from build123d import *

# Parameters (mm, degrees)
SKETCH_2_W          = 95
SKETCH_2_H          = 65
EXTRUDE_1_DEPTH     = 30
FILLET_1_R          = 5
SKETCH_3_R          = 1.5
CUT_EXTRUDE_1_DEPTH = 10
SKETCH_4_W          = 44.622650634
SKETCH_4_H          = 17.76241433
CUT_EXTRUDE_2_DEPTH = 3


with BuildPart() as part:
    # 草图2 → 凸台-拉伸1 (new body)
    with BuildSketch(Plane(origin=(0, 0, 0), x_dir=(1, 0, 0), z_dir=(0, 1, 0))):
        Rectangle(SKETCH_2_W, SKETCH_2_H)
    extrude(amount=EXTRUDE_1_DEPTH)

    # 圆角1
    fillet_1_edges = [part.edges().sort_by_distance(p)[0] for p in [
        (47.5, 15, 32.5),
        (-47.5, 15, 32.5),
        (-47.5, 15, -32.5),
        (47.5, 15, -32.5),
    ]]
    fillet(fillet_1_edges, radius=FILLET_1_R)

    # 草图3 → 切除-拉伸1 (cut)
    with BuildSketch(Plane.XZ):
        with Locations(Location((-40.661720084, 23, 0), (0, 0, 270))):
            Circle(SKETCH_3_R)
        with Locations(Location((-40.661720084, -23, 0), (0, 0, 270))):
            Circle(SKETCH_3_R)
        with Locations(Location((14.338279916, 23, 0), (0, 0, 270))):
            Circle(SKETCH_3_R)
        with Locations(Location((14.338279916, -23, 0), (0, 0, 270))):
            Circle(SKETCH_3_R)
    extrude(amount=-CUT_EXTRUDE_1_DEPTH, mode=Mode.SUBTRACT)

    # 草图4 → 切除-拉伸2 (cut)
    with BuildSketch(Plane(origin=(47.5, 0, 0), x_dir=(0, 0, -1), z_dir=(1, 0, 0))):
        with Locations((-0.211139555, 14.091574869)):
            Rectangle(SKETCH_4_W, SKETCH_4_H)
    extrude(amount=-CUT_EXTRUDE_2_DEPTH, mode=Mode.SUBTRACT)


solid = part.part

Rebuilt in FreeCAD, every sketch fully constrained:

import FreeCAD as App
import Part
import Sketcher
Q = App.Units.Quantity


def edges_at(feature, points):
    """Names of the edges that pass closest to the given points."""
    edges = feature.Shape.Edges
    near = lambda p: min(range(len(edges)), key=lambda i: edges[i].distToShape(Part.Vertex(*p))[0])
    return sorted({f"Edge{near(p) + 1}" for p in points})

doc = App.newDocument("Part")
body = doc.addObject("PartDesign::Body", "Body")

sketch1 = body.newObject("Sketcher::SketchObject", "Sketch")
sketch1.AttachmentSupport = (doc.getObject("XZ_Plane"), [""])
sketch1.MapMode = "FlatFace"
sketch1.addGeometry([
    Part.LineSegment(App.Vector(-48, -32, 0), App.Vector(-48, 32, 0)),
    Part.LineSegment(App.Vector(-48, 32, 0), App.Vector(48, 32, 0)),
    Part.LineSegment(App.Vector(48, 32, 0), App.Vector(48, -32, 0)),
    Part.LineSegment(App.Vector(48, -32, 0), App.Vector(-48, -32, 0)),
], False)
sketch1.addConstraint([
    Sketcher.Constraint("Coincident", 0, 2, 1, 1),
    Sketcher.Constraint("Coincident", 1, 2, 2, 1),
    Sketcher.Constraint("Coincident", 2, 2, 3, 1),
    Sketcher.Constraint("Coincident", 3, 2, 0, 1),
    Sketcher.Constraint("Vertical", 0),
    Sketcher.Constraint("Horizontal", 1),
    Sketcher.Constraint("Vertical", 2),
    Sketcher.Constraint("Horizontal", 3),
    Sketcher.Constraint("Symmetric", 0, 2, 2, 2, -1, 1),
    Sketcher.Constraint("DistanceX", 1, 1, 1, 2, Q("95 mm")),
    Sketcher.Constraint("DistanceY", 0, 1, 0, 2, Q("65 mm")),
])
pad1 = body.newObject("PartDesign::Pad", "Pad")
pad1.Profile = sketch1
pad1.Length = 30
pad1.Reversed = True
doc.recompute()

fillet = body.newObject("PartDesign::Fillet", "Fillet")
fillet.Base = (pad1, edges_at(pad1, [
    (47.5, 15, 32.5),
    (-47.5, 15, 32.5),
    (-47.5, 15, -32.5),
    (47.5, 15, -32.5),
]))
fillet.Radius = 5

sketch2 = body.newObject("Sketcher::SketchObject", "Sketch001")
sketch2.AttachmentSupport = (doc.getObject("XZ_Plane"), [""])
sketch2.MapMode = "FlatFace"
sketch2.addGeometry([
    Part.Circle(App.Vector(-40.7, 23, 0), App.Vector(0, 0, 1), 1.5),
    Part.Circle(App.Vector(-40.7, -23, 0), App.Vector(0, 0, 1), 1.5),
    Part.Circle(App.Vector(14.3, 23, 0), App.Vector(0, 0, 1), 1.5),
    Part.Circle(App.Vector(14.3, -23, 0), App.Vector(0, 0, 1), 1.5),
], False)
sketch2.addConstraint([
    Sketcher.Constraint("Equal", 0, 1),
    Sketcher.Constraint("Equal", 1, 2),
    Sketcher.Constraint("Equal", 2, 3),
    Sketcher.Constraint("Symmetric", 0, 3, 1, 3, -1),
    Sketcher.Constraint("Symmetric", 2, 3, 3, 3, -1),
    Sketcher.Constraint("Horizontal", 0, 3, 2, 3),
    Sketcher.Constraint("Diameter", 0, Q("3 mm")),
    Sketcher.Constraint("DistanceY", -1, 1, 0, 3, Q("23 mm")),
    Sketcher.Constraint("DistanceX", 0, 3, 2, 3, Q("55 mm")),
    Sketcher.Constraint("DistanceX", 0, 3, -1, 1, Q("40.66172 mm")),
])
pocket1 = body.newObject("PartDesign::Pocket", "Pocket")
pocket1.Profile = sketch2
pocket1.Length = 10

sketch3 = body.newObject("Sketcher::SketchObject", "Sketch002")
sketch3.AttachmentSupport = (doc.getObject("YZ_Plane"), [""])
sketch3.MapMode = "FlatFace"
sketch3.AttachmentOffset = App.Placement(App.Vector(0, 0, 47.5), App.Rotation())
sketch3.addGeometry([
    Part.LineSegment(App.Vector(23, 23, 0), App.Vector(5, 23, 0)),
    Part.LineSegment(App.Vector(5, 23, 0), App.Vector(5, -22, 0)),
    Part.LineSegment(App.Vector(5, -22, 0), App.Vector(23, -22, 0)),
    Part.LineSegment(App.Vector(23, -22, 0), App.Vector(23, 23, 0)),
], False)
sketch3.addConstraint([
    Sketcher.Constraint("Coincident", 0, 2, 1, 1),
    Sketcher.Constraint("Coincident", 1, 2, 2, 1),
    Sketcher.Constraint("Coincident", 2, 2, 3, 1),
    Sketcher.Constraint("Coincident", 3, 2, 0, 1),
    Sketcher.Constraint("Horizontal", 0),
    Sketcher.Constraint("Vertical", 1),
    Sketcher.Constraint("Horizontal", 2),
    Sketcher.Constraint("Vertical", 3),
    Sketcher.Constraint("DistanceY", 1, 2, 1, 1, Q("44.622651 mm")),
    Sketcher.Constraint("DistanceX", 0, 2, 0, 1, Q("17.762414 mm")),
    Sketcher.Constraint("DistanceX", -1, 1, 0, 2, Q("5.210368 mm")),
    Sketcher.Constraint("DistanceY", -1, 1, 0, 2, Q("22.522465 mm")),
])
pocket2 = body.newObject("PartDesign::Pocket", "Pocket001")
pocket2.Profile = sketch3
pocket2.Length = 3

doc.recompute()
